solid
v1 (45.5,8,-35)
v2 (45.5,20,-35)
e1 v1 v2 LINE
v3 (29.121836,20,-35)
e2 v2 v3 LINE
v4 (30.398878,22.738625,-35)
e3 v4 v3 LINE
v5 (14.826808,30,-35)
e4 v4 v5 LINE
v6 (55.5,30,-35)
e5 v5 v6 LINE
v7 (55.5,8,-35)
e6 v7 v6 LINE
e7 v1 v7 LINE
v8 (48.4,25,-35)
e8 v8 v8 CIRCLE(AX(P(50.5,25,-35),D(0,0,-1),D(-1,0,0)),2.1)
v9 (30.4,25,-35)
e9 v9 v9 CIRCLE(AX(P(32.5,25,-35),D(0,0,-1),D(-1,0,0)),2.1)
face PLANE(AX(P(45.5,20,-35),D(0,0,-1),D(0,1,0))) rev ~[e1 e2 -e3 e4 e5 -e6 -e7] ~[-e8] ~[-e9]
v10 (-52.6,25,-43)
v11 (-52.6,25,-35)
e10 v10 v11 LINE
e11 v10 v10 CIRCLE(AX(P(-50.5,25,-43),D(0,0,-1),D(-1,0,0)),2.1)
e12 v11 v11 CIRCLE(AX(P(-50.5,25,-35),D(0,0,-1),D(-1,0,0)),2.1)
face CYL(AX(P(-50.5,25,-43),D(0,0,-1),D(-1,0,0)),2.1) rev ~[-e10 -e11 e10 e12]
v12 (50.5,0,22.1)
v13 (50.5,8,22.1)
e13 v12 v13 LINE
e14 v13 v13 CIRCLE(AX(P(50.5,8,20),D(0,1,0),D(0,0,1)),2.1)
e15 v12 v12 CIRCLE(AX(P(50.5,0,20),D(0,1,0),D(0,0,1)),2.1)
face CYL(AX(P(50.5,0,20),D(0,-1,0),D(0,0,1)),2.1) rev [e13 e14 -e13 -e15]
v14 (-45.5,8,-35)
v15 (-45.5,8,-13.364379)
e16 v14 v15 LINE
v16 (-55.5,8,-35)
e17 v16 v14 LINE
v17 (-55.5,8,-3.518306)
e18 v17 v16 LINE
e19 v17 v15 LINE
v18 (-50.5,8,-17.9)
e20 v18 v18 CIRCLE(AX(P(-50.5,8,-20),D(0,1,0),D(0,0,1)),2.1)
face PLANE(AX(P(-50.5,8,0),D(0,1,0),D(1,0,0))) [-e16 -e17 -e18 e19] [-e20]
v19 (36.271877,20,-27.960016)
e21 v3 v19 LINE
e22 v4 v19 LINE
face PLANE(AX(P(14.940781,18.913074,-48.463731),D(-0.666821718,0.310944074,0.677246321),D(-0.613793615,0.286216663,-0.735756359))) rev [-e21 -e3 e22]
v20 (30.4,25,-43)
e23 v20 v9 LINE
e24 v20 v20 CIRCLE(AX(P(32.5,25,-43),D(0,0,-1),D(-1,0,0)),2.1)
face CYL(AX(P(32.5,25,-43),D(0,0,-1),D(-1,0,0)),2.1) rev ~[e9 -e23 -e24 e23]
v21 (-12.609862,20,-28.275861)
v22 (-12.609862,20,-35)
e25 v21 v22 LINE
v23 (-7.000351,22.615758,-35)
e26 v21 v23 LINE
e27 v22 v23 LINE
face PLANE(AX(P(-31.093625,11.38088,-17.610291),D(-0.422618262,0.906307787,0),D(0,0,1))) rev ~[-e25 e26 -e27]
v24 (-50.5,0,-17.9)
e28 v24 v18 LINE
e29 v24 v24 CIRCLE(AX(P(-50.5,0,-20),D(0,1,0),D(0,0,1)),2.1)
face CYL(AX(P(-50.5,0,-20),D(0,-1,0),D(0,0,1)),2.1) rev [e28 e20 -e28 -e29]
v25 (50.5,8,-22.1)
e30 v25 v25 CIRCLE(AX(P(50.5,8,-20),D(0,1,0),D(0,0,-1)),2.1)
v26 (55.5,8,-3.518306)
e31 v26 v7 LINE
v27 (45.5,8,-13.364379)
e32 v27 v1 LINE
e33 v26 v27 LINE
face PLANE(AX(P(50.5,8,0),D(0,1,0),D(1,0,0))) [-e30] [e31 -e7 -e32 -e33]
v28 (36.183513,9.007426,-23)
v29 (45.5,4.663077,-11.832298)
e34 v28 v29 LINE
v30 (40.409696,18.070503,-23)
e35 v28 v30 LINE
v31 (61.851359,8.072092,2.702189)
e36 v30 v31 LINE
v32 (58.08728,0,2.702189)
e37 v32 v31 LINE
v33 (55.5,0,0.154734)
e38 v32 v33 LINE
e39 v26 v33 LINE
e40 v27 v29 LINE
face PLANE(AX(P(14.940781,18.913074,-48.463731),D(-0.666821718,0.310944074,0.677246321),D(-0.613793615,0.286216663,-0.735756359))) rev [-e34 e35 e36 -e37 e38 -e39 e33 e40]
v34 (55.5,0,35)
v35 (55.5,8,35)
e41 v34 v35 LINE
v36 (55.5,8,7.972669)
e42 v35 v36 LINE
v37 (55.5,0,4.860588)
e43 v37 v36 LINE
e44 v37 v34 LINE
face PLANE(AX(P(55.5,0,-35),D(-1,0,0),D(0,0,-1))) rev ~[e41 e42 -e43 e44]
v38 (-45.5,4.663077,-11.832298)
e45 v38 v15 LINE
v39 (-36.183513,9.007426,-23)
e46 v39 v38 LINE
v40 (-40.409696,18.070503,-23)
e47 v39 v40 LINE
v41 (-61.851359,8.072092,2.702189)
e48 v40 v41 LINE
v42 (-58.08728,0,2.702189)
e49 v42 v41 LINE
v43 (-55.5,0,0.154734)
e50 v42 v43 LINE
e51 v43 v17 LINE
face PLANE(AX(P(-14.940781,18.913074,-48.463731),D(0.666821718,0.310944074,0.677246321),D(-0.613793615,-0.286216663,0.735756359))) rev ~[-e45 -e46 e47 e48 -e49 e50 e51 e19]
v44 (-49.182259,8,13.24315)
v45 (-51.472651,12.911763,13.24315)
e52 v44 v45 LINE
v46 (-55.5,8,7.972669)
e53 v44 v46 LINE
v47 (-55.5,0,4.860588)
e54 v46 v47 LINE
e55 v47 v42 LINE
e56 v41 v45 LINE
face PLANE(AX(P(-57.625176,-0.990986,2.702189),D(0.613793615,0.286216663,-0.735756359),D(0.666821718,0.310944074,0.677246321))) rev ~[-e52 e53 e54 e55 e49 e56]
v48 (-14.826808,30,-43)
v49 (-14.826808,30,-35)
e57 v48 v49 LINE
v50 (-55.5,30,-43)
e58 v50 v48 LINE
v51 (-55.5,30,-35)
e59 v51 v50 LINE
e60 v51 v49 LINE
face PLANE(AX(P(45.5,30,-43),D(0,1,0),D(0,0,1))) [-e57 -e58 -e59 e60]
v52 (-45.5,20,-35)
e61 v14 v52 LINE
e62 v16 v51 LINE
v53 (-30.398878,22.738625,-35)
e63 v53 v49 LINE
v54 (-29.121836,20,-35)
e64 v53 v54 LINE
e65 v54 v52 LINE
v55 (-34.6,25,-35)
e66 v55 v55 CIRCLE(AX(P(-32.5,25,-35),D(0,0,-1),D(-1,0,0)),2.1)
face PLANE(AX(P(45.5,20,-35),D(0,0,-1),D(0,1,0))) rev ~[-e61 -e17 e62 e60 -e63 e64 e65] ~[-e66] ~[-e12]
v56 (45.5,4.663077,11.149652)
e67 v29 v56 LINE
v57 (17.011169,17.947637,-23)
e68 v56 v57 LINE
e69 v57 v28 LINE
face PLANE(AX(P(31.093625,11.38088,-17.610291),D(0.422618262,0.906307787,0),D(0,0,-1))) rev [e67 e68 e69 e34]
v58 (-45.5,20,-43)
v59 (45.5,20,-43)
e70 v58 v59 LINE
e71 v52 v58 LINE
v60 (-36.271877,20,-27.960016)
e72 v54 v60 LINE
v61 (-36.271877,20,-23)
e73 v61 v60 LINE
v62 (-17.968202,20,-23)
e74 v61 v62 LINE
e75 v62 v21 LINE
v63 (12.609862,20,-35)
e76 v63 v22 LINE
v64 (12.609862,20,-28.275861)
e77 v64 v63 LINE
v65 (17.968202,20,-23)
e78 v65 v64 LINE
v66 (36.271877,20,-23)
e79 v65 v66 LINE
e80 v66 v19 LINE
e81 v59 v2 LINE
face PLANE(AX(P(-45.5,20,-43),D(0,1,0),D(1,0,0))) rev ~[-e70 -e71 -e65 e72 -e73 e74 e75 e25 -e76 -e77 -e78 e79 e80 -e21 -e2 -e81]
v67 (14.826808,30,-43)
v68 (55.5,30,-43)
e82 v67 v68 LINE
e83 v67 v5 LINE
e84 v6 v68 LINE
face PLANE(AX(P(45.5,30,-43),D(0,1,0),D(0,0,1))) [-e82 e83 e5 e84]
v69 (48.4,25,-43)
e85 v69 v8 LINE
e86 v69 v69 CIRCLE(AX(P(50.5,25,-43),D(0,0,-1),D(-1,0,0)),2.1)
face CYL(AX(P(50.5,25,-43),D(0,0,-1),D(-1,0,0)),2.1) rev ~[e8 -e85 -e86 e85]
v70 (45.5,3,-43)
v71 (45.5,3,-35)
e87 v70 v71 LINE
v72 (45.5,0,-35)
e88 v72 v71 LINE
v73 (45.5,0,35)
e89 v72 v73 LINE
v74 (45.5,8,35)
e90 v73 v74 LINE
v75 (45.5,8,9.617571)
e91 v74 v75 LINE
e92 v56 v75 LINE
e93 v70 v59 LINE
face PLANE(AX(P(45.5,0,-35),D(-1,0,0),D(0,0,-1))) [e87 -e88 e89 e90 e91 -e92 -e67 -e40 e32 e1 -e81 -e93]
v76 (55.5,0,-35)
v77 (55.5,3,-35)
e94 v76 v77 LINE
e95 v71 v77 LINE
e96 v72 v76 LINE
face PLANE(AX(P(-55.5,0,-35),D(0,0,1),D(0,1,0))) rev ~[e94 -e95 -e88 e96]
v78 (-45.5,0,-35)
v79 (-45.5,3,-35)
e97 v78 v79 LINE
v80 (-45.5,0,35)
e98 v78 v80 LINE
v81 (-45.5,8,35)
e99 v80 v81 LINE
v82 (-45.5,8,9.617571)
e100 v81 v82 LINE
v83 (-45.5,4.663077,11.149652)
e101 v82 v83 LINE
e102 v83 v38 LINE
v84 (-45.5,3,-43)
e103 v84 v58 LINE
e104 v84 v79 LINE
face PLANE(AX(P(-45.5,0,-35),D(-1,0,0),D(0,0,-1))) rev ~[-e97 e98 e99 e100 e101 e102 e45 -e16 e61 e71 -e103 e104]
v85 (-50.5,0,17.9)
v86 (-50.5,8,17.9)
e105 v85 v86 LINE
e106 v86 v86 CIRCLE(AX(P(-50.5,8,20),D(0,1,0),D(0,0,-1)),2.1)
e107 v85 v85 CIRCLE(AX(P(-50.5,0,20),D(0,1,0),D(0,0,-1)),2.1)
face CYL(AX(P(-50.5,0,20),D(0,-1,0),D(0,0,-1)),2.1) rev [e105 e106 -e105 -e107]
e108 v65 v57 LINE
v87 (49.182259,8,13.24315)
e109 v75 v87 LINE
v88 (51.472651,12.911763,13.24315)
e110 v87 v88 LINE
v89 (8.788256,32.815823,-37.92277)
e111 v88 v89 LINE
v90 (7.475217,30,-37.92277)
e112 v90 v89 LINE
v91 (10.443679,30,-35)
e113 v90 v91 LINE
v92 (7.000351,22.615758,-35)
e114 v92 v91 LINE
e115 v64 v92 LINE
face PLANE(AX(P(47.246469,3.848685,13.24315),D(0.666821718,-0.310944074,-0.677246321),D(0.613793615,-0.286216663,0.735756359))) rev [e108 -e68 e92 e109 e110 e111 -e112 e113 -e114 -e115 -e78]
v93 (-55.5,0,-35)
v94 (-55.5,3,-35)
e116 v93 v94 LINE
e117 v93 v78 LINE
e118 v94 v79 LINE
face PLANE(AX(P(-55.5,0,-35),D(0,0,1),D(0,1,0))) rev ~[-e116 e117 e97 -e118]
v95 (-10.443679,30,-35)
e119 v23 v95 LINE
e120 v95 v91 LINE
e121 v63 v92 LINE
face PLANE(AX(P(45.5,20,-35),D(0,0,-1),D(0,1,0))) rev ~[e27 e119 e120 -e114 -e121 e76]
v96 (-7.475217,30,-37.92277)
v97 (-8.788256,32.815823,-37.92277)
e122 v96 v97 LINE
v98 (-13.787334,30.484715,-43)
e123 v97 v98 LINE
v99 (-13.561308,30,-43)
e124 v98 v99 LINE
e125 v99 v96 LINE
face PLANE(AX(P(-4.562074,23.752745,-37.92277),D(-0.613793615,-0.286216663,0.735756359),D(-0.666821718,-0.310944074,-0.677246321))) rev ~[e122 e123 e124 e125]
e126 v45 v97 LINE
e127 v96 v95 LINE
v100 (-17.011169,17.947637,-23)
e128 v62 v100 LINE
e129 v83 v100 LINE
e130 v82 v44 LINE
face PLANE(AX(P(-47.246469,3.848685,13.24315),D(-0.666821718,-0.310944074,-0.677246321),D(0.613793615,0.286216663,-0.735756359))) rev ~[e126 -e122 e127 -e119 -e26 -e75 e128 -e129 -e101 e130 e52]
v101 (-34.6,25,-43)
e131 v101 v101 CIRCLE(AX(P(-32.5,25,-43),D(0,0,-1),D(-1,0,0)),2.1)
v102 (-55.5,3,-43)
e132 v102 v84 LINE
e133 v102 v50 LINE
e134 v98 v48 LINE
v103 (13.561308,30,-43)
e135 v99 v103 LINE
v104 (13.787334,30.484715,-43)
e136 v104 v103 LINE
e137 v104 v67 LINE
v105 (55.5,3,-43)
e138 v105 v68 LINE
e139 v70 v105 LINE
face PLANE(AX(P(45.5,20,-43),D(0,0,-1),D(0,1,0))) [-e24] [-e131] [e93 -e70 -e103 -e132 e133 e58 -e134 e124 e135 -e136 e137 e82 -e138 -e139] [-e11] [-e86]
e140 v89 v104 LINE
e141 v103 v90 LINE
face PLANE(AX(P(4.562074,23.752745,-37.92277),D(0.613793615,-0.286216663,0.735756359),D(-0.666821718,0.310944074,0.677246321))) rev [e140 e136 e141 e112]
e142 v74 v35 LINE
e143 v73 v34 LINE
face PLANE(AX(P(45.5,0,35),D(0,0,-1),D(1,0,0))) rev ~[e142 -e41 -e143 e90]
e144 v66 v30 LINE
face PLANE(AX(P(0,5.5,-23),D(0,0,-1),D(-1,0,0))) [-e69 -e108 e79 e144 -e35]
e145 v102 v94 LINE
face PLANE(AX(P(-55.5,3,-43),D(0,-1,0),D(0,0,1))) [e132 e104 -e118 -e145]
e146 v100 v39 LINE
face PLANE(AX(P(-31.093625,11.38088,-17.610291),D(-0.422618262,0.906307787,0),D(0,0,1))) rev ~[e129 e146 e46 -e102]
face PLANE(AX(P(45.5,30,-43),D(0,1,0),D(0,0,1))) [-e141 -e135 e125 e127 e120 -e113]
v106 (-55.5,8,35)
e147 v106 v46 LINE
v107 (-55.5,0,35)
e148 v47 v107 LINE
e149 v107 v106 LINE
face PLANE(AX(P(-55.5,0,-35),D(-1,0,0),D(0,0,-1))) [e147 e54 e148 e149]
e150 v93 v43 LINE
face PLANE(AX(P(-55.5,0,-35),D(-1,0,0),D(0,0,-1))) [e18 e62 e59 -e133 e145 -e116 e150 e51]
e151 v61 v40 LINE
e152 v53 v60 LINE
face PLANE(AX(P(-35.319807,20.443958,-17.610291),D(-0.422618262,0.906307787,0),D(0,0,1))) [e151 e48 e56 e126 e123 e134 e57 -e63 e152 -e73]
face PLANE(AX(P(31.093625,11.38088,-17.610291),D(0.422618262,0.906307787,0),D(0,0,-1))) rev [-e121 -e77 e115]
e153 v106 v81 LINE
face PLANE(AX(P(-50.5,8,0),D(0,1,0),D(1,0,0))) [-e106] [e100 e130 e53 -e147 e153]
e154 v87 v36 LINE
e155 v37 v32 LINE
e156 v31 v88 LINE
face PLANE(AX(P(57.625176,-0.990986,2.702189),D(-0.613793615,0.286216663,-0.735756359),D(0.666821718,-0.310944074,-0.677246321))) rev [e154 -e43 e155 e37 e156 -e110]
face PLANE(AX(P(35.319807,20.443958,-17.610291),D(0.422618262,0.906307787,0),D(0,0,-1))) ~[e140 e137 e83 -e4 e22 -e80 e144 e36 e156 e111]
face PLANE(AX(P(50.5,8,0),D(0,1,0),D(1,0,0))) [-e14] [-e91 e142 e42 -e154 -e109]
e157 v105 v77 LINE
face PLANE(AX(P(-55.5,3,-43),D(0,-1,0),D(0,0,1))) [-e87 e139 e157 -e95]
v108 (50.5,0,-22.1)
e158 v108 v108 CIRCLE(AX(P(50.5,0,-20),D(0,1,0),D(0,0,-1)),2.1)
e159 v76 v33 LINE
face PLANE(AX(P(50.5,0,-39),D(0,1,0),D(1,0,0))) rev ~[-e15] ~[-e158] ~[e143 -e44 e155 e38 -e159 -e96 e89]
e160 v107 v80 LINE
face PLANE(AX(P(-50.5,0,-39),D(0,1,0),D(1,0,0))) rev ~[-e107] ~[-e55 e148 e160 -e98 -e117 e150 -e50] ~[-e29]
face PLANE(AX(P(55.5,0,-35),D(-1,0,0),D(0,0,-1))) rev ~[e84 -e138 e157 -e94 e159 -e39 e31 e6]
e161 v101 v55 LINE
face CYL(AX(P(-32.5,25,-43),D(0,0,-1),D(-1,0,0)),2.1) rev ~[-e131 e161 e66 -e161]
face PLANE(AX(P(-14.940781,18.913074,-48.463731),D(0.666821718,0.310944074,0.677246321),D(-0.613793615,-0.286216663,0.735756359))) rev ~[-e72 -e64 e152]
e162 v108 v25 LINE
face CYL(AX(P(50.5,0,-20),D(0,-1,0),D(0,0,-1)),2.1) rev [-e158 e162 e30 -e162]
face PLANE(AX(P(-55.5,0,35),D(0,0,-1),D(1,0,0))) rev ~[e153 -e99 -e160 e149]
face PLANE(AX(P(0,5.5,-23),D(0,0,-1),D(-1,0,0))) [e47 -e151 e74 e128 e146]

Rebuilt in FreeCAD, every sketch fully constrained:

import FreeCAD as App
import Part
import Sketcher
Q = App.Units.Quantity


def add_polygon(sketch, points):
    """Adds a closed chain of lines whose ends are joined by coincident constraints."""
    first, n = sketch.GeometryCount, len(points)
    for a, b in zip(points, points[1:] + points[:1]):
        sketch.addGeometry(Part.LineSegment(App.Vector(*a, 0), App.Vector(*b, 0)), False)
    for i in range(n):
        sketch.addConstraint(Sketcher.Constraint("Coincident", first + i, 2, first + (i + 1) % n, 1))

doc = App.newDocument("Part")
body = doc.addObject("PartDesign::Body", "Body")

# Sketch on XZ plane
sketch1 = body.newObject("Sketcher::SketchObject", "Sketch")
sketch1.AttachmentSupport = (doc.getObject("XZ_Plane"), [""])
sketch1.MapMode = "FlatFace"
add_polygon(sketch1, [(-55.5, -35), (-55.5, 35), (-45.5, 35), (-45.5, -35)])  # lines 0-3
sketch1.addGeometry(Part.Circle(App.Vector(-50.5, 20, 0), App.Vector(0, 0, 1), 2.1), False)  # 4
sketch1.addGeometry(Part.Circle(App.Vector(-50.5, -20, 0), App.Vector(0, 0, 1), 2.1), False)  # 5
sketch1.addConstraint([
    Sketcher.Constraint("Vertical", 0),
    Sketcher.Constraint("Horizontal", 1),
    Sketcher.Constraint("Vertical", 2),
    Sketcher.Constraint("Horizontal", 3),
    Sketcher.Constraint("Equal", 4, 5),
    Sketcher.Constraint("Symmetric", 4, 3, 5, 3, -1),
    Sketcher.Constraint("Diameter", 4, Q("4.2 mm")),
    Sketcher.Constraint("DistanceX", 1, 1, 1, 2, Q("10 mm")),
    Sketcher.Constraint("DistanceY", 0, 1, 0, 2, Q("70 mm")),
    Sketcher.Constraint("DistanceY", -1, 1, 4, 3, Q("20 mm")),
    Sketcher.Constraint("DistanceY", -1, 1, 0, 2, Q("35 mm")),
    Sketcher.Constraint("DistanceX", 0, 2, 4, 3, Q("5 mm")),
    Sketcher.Constraint("DistanceX", 4, 3, -1, 1, Q("50.5 mm")),
])
pad1 = body.newObject("PartDesign::Pad", "Pad")
pad1.Profile = sketch1
pad1.Length = 8
pad1.Reversed = True
body2 = doc.addObject("PartDesign::Body", "Body001")

# Sketch on XZ plane
sketch2 = body2.newObject("Sketcher::SketchObject", "Sketch001")
sketch2.AttachmentSupport = (doc.getObject("XZ_Plane001"), [""])
sketch2.MapMode = "FlatFace"
add_polygon(sketch2, [(45.5, -35), (45.5, 35), (55.5, 35), (55.5, -35)])  # lines 0-3
sketch2.addGeometry(Part.Circle(App.Vector(50.5, 20, 0), App.Vector(0, 0, 1), 2.1), False)  # 4
sketch2.addGeometry(Part.Circle(App.Vector(50.5, -20, 0), App.Vector(0, 0, 1), 2.1), False)  # 5
sketch2.addConstraint([
    Sketcher.Constraint("Vertical", 0),
    Sketcher.Constraint("Horizontal", 1),
    Sketcher.Constraint("Vertical", 2),
    Sketcher.Constraint("Horizontal", 3),
    Sketcher.Constraint("Equal", 4, 5),
    Sketcher.Constraint("Symmetric", 4, 3, 5, 3, -1),
    Sketcher.Constraint("Diameter", 4, Q("4.2 mm")),
    Sketcher.Constraint("DistanceX", 1, 1, 1, 2, Q("10 mm")),
    Sketcher.Constraint("DistanceY", 0, 1, 0, 2, Q("70 mm")),
    Sketcher.Constraint("DistanceY", -1, 1, 4, 3, Q("20 mm")),
    Sketcher.Constraint("DistanceY", -1, 1, 0, 2, Q("35 mm")),
    Sketcher.Constraint("DistanceX", 0, 2, 4, 3, Q("5 mm")),
    Sketcher.Constraint("DistanceX", -1, 1, 4, 3, Q("50.5 mm")),
])
pad2 = body2.newObject("PartDesign::Pad", "Pad001")
pad2.Profile = sketch2
pad2.Length = 8
pad2.Reversed = True
body.AllowCompound = True
doc.recompute()

boolean = body.newObject("PartDesign::Boolean", "Boolean")
boolean.Type = "Fuse"
boolean.addObjects([body2])

# Sketch on XZ plane
sketch3 = body.newObject("Sketcher::SketchObject", "Sketch002")
sketch3.AttachmentSupport = (doc.getObject("XZ_Plane"), [""])
sketch3.MapMode = "FlatFace"
add_polygon(sketch3, [(-56, -43), (-56, -35), (-46, -35), (-46, -43)])  # lines 0-3
add_polygon(sketch3, [(46, -43), (46, -35), (56, -35), (56, -43)])  # lines 4-7
sketch3.addConstraint([
    Sketcher.Constraint("Vertical", 0),
    Sketcher.Constraint("Horizontal", 1),
    Sketcher.Constraint("Vertical", 2),
    Sketcher.Constraint("Horizontal", 3),
    Sketcher.Constraint("Vertical", 4),
    Sketcher.Constraint("Horizontal", 5),
    Sketcher.Constraint("Vertical", 6),
    Sketcher.Constraint("Horizontal", 7),
    Sketcher.Constraint("Symmetric", 1, 2, 4, 2, -2),
    Sketcher.Constraint("Symmetric", 3, 2, 6, 2, -2),
    Sketcher.Constraint("DistanceX", 1, 1, 1, 2, Q("10 mm")),
    Sketcher.Constraint("DistanceY", 0, 1, 0, 2, Q("8 mm")),
    Sketcher.Constraint("DistanceY", 0, 2, -1, 1, Q("35 mm")),
    Sketcher.Constraint("DistanceX", 1, 2, 4, 2, Q("91 mm")),
])
pad3 = body.newObject("PartDesign::Pad", "Pad002")
pad3.Profile = sketch3
pad3.Length = 30
pad3.Reversed = True

# Sketch on YZ plane
sketch4 = body.newObject("Sketcher::SketchObject", "Sketch003")
sketch4.AttachmentSupport = (doc.getObject("YZ_Plane"), [""])
sketch4.MapMode = "FlatFace"
sketch4.AttachmentOffset = App.Placement(App.Vector(0, 0, 45.5), App.Rotation())
add_polygon(sketch4, [(30, -43), (20, -43), (20, -35), (30, -35)])  # lines 0-3
sketch4.addConstraint([
    Sketcher.Constraint("Horizontal", 0),
    Sketcher.Constraint("Vertical", 1),
    Sketcher.Constraint("Horizontal", 2),
    Sketcher.Constraint("Vertical", 3),
    Sketcher.Constraint("DistanceX", 0, 2, 0, 1, Q("10 mm")),
    Sketcher.Constraint("DistanceY", 1, 1, 1, 2, Q("8 mm")),
    Sketcher.Constraint("DistanceX", -1, 1, 0, 2, Q("20 mm")),
    Sketcher.Constraint("DistanceY", 0, 2, -1, 1, Q("43 mm")),
])
pad4 = body.newObject("PartDesign::Pad", "Pad003")
pad4.Profile = sketch4
pad4.Length = 97
pad4.Reversed = True

# Sketch on XY plane
sketch5 = body.newObject("Sketcher::SketchObject", "Sketch004")
sketch5.AttachmentSupport = (doc.getObject("XY_Plane"), [""])
sketch5.MapMode = "FlatFace"
sketch5.AttachmentOffset = App.Placement(App.Vector(0, 0, -43), App.Rotation())
sketch5.addGeometry([
    Part.Circle(App.Vector(50.5, 25, 0), App.Vector(0, 0, 1), 2.1),
    Part.Circle(App.Vector(32.5, 25, 0), App.Vector(0, 0, 1), 2.1),
    Part.Circle(App.Vector(-32.5, 25, 0), App.Vector(0, 0, 1), 2.1),
    Part.Circle(App.Vector(-50.5, 25, 0), App.Vector(0, 0, 1), 2.1),
], False)
sketch5.addConstraint([
    Sketcher.Constraint("Equal", 0, 1),
    Sketcher.Constraint("Equal", 1, 2),
    Sketcher.Constraint("Equal", 2, 3),
    Sketcher.Constraint("Symmetric", 1, 3, 2, 3, -2),
    Sketcher.Constraint("Symmetric", 0, 3, 3, 3, -2),
    Sketcher.Constraint("Horizontal", 0, 3, 1, 3),
    Sketcher.Constraint("Diameter", 0, Q("4.2 mm")),
    Sketcher.Constraint("DistanceY", -1, 1, 0, 3, Q("25 mm")),
    Sketcher.Constraint("DistanceX", 1, 3, 0, 3, Q("18 mm")),
    Sketcher.Constraint("DistanceX", 2, 3, 1, 3, Q("65 mm")),
])
pocket1 = body.newObject("PartDesign::Pocket", "Pocket")
pocket1.Profile = sketch5
pocket1.Type = "ThroughAll"
pocket1.Reversed = True

# Sketch on an angled plane
sketch6 = body.newObject("Sketcher::SketchObject", "Sketch005")
sketch6.Placement = App.Placement(App.Vector(-9.912644, 21.257733, 0), App.Rotation(App.Vector(0, 0, 1), App.Vector(0.906307787, 0.422618262, 0), App.Vector(-0.422618262, 0.906307787, 0), "ZXY"))
add_polygon(sketch6, [(13, -41), (-38, 6), (-48, -6), (3, -53)])  # lines 0-3
sketch6.addConstraint([
    Sketcher.Constraint("Perpendicular", 0, 1),
    Sketcher.Constraint("Perpendicular", 1, 2),
    Sketcher.Constraint("Perpendicular", 2, 3),
    Sketcher.Constraint("DistanceY", -1, 1, 0, 2, Q("5.903701 mm")),
    Sketcher.Constraint("Distance", 1, Q("15.564441 mm")),
    Sketcher.Constraint("DistanceX", 0, 2, -1, 1, Q("37.92277 mm")),
    Sketcher.Constraint("DistanceX", 1, 2, -1, 1, Q("48.463731 mm")),
    Sketcher.Constraint("DistanceX", -1, 1, 2, 2, Q("2.702189 mm")),
])
pad5 = body.newObject("PartDesign::Pad", "Pad004")
pad5.Profile = sketch6
pad5.Length = 10
doc.recompute()

mirrored = body.newObject("PartDesign::Mirrored", "Mirrored")
mirrored.Originals = [pad5]
mirrored.MirrorPlane = (doc.getObject("YZ_Plane"), [""])
body.Tip = mirrored

# Sketch on XZ plane
sketch7 = body.newObject("Sketcher::SketchObject", "Sketch006")
sketch7.AttachmentSupport = (doc.getObject("XZ_Plane"), [""])
sketch7.MapMode = "FlatFace"
add_polygon(sketch7, [(-56, -49), (-56, -43), (56, -43), (56, -49)])  # lines 0-3
sketch7.addConstraint([
    Sketcher.Constraint("Vertical", 0),
    Sketcher.Constraint("Horizontal", 1),
    Sketcher.Constraint("Vertical", 2),
    Sketcher.Constraint("Horizontal", 3),
    Sketcher.Constraint("DistanceX", 1, 1, 1, 2, Q("111 mm")),
    Sketcher.Constraint("DistanceY", 0, 1, 0, 2, Q("6 mm")),
    Sketcher.Constraint("DistanceY", 0, 2, -1, 1, Q("43 mm")),
    Sketcher.Constraint("DistanceX", 0, 2, -1, 1, Q("55.5 mm")),
])
pocket2 = body.newObject("PartDesign::Pocket", "Pocket001")
pocket2.Profile = sketch7
pocket2.Type = "ThroughAll"

# Sketch on XY plane
sketch8 = body.newObject("Sketcher::SketchObject", "Sketch007")
sketch8.AttachmentSupport = (doc.getObject("XY_Plane"), [""])
sketch8.MapMode = "FlatFace"
sketch8.AttachmentOffset = App.Placement(App.Vector(0, 0, -43), App.Rotation())
add_polygon(sketch8, [(46, 20), (46, 0), (60, 0), (60, -5), (-60, -5), (-60, 0), (-46, 0), (-46, 20)])  # lines 0-7
sketch8.addConstraint([
    Sketcher.Constraint("Vertical", 0),
    Sketcher.Constraint("Horizontal", 1),
    Sketcher.Constraint("Vertical", 2),
    Sketcher.Constraint("Horizontal", 3),
    Sketcher.Constraint("Vertical", 4),
    Sketcher.Constraint("Horizontal", 5),
    Sketcher.Constraint("Vertical", 6),
    Sketcher.Constraint("Horizontal", 7),
    Sketcher.Constraint("Symmetric", 1, 2, 4, 2, -1, 1),
    Sketcher.Constraint("Symmetric", 0, 2, 5, 2, -2),
    Sketcher.Constraint("DistanceX", 3, 2, 3, 1, Q("120 mm")),
    Sketcher.Constraint("DistanceX", 7, 1, 7, 2, Q("91 mm")),
    Sketcher.Constraint("DistanceY", 0, 2, 0, 1, Q("20 mm")),
    Sketcher.Constraint("DistanceY", 2, 2, 2, 1, Q("5 mm")),
])
pocket3 = body.newObject("PartDesign::Pocket", "Pocket002")
pocket3.Profile = sketch8
pocket3.Length = 20
pocket3.Reversed = True

# Sketch on YZ plane
sketch9 = body.newObject("Sketcher::SketchObject", "Sketch008")
sketch9.AttachmentSupport = (doc.getObject("YZ_Plane"), [""])
sketch9.MapMode = "FlatFace"
sketch9.AttachmentOffset = App.Placement(App.Vector(0, 0, -55.5), App.Rotation())
add_polygon(sketch9, [(3, -43), (0, -43), (0, -35), (3, -35)])  # lines 0-3
sketch9.addConstraint([
    Sketcher.Constraint("Horizontal", 0),
    Sketcher.Constraint("Vertical", 1),
    Sketcher.Constraint("Horizontal", 2),
    Sketcher.Constraint("Vertical", 3),
    Sketcher.Constraint("PointOnObject", 0, 2, -2),
    Sketcher.Constraint("DistanceX", 0, 2, 0, 1, Q("3 mm")),
    Sketcher.Constraint("DistanceY", 1, 1, 1, 2, Q("8 mm")),
    Sketcher.Constraint("DistanceY", 0, 2, -1, 1, Q("43 mm")),
])
pocket4 = body.newObject("PartDesign::Pocket", "Pocket003")
pocket4.Profile = sketch9
pocket4.Type = "ThroughAll"
pocket4.Reversed = True

# Sketch on XY plane
sketch10 = body.newObject("Sketcher::SketchObject", "Sketch009")
sketch10.AttachmentSupport = (doc.getObject("XY_Plane"), [""])
sketch10.MapMode = "FlatFace"
sketch10.AttachmentOffset = App.Placement(App.Vector(0, 0, -43), App.Rotation())
add_polygon(sketch10, [(65, 0), (65, -5), (-65, -5), (-65, 0)])  # lines 0-3
sketch10.addConstraint([
    Sketcher.Constraint("Vertical", 0),
    Sketcher.Constraint("Horizontal", 1),
    Sketcher.Constraint("Vertical", 2),
    Sketcher.Constraint("Horizontal", 3),
    Sketcher.Constraint("Symmetric", 2, 2, 3, 2, -1, 1),
    Sketcher.Constraint("DistanceX", 1, 2, 1, 1, Q("130 mm")),
    Sketcher.Constraint("DistanceY", 0, 2, 0, 1, Q("5 mm")),
])
pocket5 = body.newObject("PartDesign::Pocket", "Pocket004")
pocket5.Profile = sketch10
pocket5.Type = "ThroughAll"
pocket5.Reversed = True

doc.recompute()
